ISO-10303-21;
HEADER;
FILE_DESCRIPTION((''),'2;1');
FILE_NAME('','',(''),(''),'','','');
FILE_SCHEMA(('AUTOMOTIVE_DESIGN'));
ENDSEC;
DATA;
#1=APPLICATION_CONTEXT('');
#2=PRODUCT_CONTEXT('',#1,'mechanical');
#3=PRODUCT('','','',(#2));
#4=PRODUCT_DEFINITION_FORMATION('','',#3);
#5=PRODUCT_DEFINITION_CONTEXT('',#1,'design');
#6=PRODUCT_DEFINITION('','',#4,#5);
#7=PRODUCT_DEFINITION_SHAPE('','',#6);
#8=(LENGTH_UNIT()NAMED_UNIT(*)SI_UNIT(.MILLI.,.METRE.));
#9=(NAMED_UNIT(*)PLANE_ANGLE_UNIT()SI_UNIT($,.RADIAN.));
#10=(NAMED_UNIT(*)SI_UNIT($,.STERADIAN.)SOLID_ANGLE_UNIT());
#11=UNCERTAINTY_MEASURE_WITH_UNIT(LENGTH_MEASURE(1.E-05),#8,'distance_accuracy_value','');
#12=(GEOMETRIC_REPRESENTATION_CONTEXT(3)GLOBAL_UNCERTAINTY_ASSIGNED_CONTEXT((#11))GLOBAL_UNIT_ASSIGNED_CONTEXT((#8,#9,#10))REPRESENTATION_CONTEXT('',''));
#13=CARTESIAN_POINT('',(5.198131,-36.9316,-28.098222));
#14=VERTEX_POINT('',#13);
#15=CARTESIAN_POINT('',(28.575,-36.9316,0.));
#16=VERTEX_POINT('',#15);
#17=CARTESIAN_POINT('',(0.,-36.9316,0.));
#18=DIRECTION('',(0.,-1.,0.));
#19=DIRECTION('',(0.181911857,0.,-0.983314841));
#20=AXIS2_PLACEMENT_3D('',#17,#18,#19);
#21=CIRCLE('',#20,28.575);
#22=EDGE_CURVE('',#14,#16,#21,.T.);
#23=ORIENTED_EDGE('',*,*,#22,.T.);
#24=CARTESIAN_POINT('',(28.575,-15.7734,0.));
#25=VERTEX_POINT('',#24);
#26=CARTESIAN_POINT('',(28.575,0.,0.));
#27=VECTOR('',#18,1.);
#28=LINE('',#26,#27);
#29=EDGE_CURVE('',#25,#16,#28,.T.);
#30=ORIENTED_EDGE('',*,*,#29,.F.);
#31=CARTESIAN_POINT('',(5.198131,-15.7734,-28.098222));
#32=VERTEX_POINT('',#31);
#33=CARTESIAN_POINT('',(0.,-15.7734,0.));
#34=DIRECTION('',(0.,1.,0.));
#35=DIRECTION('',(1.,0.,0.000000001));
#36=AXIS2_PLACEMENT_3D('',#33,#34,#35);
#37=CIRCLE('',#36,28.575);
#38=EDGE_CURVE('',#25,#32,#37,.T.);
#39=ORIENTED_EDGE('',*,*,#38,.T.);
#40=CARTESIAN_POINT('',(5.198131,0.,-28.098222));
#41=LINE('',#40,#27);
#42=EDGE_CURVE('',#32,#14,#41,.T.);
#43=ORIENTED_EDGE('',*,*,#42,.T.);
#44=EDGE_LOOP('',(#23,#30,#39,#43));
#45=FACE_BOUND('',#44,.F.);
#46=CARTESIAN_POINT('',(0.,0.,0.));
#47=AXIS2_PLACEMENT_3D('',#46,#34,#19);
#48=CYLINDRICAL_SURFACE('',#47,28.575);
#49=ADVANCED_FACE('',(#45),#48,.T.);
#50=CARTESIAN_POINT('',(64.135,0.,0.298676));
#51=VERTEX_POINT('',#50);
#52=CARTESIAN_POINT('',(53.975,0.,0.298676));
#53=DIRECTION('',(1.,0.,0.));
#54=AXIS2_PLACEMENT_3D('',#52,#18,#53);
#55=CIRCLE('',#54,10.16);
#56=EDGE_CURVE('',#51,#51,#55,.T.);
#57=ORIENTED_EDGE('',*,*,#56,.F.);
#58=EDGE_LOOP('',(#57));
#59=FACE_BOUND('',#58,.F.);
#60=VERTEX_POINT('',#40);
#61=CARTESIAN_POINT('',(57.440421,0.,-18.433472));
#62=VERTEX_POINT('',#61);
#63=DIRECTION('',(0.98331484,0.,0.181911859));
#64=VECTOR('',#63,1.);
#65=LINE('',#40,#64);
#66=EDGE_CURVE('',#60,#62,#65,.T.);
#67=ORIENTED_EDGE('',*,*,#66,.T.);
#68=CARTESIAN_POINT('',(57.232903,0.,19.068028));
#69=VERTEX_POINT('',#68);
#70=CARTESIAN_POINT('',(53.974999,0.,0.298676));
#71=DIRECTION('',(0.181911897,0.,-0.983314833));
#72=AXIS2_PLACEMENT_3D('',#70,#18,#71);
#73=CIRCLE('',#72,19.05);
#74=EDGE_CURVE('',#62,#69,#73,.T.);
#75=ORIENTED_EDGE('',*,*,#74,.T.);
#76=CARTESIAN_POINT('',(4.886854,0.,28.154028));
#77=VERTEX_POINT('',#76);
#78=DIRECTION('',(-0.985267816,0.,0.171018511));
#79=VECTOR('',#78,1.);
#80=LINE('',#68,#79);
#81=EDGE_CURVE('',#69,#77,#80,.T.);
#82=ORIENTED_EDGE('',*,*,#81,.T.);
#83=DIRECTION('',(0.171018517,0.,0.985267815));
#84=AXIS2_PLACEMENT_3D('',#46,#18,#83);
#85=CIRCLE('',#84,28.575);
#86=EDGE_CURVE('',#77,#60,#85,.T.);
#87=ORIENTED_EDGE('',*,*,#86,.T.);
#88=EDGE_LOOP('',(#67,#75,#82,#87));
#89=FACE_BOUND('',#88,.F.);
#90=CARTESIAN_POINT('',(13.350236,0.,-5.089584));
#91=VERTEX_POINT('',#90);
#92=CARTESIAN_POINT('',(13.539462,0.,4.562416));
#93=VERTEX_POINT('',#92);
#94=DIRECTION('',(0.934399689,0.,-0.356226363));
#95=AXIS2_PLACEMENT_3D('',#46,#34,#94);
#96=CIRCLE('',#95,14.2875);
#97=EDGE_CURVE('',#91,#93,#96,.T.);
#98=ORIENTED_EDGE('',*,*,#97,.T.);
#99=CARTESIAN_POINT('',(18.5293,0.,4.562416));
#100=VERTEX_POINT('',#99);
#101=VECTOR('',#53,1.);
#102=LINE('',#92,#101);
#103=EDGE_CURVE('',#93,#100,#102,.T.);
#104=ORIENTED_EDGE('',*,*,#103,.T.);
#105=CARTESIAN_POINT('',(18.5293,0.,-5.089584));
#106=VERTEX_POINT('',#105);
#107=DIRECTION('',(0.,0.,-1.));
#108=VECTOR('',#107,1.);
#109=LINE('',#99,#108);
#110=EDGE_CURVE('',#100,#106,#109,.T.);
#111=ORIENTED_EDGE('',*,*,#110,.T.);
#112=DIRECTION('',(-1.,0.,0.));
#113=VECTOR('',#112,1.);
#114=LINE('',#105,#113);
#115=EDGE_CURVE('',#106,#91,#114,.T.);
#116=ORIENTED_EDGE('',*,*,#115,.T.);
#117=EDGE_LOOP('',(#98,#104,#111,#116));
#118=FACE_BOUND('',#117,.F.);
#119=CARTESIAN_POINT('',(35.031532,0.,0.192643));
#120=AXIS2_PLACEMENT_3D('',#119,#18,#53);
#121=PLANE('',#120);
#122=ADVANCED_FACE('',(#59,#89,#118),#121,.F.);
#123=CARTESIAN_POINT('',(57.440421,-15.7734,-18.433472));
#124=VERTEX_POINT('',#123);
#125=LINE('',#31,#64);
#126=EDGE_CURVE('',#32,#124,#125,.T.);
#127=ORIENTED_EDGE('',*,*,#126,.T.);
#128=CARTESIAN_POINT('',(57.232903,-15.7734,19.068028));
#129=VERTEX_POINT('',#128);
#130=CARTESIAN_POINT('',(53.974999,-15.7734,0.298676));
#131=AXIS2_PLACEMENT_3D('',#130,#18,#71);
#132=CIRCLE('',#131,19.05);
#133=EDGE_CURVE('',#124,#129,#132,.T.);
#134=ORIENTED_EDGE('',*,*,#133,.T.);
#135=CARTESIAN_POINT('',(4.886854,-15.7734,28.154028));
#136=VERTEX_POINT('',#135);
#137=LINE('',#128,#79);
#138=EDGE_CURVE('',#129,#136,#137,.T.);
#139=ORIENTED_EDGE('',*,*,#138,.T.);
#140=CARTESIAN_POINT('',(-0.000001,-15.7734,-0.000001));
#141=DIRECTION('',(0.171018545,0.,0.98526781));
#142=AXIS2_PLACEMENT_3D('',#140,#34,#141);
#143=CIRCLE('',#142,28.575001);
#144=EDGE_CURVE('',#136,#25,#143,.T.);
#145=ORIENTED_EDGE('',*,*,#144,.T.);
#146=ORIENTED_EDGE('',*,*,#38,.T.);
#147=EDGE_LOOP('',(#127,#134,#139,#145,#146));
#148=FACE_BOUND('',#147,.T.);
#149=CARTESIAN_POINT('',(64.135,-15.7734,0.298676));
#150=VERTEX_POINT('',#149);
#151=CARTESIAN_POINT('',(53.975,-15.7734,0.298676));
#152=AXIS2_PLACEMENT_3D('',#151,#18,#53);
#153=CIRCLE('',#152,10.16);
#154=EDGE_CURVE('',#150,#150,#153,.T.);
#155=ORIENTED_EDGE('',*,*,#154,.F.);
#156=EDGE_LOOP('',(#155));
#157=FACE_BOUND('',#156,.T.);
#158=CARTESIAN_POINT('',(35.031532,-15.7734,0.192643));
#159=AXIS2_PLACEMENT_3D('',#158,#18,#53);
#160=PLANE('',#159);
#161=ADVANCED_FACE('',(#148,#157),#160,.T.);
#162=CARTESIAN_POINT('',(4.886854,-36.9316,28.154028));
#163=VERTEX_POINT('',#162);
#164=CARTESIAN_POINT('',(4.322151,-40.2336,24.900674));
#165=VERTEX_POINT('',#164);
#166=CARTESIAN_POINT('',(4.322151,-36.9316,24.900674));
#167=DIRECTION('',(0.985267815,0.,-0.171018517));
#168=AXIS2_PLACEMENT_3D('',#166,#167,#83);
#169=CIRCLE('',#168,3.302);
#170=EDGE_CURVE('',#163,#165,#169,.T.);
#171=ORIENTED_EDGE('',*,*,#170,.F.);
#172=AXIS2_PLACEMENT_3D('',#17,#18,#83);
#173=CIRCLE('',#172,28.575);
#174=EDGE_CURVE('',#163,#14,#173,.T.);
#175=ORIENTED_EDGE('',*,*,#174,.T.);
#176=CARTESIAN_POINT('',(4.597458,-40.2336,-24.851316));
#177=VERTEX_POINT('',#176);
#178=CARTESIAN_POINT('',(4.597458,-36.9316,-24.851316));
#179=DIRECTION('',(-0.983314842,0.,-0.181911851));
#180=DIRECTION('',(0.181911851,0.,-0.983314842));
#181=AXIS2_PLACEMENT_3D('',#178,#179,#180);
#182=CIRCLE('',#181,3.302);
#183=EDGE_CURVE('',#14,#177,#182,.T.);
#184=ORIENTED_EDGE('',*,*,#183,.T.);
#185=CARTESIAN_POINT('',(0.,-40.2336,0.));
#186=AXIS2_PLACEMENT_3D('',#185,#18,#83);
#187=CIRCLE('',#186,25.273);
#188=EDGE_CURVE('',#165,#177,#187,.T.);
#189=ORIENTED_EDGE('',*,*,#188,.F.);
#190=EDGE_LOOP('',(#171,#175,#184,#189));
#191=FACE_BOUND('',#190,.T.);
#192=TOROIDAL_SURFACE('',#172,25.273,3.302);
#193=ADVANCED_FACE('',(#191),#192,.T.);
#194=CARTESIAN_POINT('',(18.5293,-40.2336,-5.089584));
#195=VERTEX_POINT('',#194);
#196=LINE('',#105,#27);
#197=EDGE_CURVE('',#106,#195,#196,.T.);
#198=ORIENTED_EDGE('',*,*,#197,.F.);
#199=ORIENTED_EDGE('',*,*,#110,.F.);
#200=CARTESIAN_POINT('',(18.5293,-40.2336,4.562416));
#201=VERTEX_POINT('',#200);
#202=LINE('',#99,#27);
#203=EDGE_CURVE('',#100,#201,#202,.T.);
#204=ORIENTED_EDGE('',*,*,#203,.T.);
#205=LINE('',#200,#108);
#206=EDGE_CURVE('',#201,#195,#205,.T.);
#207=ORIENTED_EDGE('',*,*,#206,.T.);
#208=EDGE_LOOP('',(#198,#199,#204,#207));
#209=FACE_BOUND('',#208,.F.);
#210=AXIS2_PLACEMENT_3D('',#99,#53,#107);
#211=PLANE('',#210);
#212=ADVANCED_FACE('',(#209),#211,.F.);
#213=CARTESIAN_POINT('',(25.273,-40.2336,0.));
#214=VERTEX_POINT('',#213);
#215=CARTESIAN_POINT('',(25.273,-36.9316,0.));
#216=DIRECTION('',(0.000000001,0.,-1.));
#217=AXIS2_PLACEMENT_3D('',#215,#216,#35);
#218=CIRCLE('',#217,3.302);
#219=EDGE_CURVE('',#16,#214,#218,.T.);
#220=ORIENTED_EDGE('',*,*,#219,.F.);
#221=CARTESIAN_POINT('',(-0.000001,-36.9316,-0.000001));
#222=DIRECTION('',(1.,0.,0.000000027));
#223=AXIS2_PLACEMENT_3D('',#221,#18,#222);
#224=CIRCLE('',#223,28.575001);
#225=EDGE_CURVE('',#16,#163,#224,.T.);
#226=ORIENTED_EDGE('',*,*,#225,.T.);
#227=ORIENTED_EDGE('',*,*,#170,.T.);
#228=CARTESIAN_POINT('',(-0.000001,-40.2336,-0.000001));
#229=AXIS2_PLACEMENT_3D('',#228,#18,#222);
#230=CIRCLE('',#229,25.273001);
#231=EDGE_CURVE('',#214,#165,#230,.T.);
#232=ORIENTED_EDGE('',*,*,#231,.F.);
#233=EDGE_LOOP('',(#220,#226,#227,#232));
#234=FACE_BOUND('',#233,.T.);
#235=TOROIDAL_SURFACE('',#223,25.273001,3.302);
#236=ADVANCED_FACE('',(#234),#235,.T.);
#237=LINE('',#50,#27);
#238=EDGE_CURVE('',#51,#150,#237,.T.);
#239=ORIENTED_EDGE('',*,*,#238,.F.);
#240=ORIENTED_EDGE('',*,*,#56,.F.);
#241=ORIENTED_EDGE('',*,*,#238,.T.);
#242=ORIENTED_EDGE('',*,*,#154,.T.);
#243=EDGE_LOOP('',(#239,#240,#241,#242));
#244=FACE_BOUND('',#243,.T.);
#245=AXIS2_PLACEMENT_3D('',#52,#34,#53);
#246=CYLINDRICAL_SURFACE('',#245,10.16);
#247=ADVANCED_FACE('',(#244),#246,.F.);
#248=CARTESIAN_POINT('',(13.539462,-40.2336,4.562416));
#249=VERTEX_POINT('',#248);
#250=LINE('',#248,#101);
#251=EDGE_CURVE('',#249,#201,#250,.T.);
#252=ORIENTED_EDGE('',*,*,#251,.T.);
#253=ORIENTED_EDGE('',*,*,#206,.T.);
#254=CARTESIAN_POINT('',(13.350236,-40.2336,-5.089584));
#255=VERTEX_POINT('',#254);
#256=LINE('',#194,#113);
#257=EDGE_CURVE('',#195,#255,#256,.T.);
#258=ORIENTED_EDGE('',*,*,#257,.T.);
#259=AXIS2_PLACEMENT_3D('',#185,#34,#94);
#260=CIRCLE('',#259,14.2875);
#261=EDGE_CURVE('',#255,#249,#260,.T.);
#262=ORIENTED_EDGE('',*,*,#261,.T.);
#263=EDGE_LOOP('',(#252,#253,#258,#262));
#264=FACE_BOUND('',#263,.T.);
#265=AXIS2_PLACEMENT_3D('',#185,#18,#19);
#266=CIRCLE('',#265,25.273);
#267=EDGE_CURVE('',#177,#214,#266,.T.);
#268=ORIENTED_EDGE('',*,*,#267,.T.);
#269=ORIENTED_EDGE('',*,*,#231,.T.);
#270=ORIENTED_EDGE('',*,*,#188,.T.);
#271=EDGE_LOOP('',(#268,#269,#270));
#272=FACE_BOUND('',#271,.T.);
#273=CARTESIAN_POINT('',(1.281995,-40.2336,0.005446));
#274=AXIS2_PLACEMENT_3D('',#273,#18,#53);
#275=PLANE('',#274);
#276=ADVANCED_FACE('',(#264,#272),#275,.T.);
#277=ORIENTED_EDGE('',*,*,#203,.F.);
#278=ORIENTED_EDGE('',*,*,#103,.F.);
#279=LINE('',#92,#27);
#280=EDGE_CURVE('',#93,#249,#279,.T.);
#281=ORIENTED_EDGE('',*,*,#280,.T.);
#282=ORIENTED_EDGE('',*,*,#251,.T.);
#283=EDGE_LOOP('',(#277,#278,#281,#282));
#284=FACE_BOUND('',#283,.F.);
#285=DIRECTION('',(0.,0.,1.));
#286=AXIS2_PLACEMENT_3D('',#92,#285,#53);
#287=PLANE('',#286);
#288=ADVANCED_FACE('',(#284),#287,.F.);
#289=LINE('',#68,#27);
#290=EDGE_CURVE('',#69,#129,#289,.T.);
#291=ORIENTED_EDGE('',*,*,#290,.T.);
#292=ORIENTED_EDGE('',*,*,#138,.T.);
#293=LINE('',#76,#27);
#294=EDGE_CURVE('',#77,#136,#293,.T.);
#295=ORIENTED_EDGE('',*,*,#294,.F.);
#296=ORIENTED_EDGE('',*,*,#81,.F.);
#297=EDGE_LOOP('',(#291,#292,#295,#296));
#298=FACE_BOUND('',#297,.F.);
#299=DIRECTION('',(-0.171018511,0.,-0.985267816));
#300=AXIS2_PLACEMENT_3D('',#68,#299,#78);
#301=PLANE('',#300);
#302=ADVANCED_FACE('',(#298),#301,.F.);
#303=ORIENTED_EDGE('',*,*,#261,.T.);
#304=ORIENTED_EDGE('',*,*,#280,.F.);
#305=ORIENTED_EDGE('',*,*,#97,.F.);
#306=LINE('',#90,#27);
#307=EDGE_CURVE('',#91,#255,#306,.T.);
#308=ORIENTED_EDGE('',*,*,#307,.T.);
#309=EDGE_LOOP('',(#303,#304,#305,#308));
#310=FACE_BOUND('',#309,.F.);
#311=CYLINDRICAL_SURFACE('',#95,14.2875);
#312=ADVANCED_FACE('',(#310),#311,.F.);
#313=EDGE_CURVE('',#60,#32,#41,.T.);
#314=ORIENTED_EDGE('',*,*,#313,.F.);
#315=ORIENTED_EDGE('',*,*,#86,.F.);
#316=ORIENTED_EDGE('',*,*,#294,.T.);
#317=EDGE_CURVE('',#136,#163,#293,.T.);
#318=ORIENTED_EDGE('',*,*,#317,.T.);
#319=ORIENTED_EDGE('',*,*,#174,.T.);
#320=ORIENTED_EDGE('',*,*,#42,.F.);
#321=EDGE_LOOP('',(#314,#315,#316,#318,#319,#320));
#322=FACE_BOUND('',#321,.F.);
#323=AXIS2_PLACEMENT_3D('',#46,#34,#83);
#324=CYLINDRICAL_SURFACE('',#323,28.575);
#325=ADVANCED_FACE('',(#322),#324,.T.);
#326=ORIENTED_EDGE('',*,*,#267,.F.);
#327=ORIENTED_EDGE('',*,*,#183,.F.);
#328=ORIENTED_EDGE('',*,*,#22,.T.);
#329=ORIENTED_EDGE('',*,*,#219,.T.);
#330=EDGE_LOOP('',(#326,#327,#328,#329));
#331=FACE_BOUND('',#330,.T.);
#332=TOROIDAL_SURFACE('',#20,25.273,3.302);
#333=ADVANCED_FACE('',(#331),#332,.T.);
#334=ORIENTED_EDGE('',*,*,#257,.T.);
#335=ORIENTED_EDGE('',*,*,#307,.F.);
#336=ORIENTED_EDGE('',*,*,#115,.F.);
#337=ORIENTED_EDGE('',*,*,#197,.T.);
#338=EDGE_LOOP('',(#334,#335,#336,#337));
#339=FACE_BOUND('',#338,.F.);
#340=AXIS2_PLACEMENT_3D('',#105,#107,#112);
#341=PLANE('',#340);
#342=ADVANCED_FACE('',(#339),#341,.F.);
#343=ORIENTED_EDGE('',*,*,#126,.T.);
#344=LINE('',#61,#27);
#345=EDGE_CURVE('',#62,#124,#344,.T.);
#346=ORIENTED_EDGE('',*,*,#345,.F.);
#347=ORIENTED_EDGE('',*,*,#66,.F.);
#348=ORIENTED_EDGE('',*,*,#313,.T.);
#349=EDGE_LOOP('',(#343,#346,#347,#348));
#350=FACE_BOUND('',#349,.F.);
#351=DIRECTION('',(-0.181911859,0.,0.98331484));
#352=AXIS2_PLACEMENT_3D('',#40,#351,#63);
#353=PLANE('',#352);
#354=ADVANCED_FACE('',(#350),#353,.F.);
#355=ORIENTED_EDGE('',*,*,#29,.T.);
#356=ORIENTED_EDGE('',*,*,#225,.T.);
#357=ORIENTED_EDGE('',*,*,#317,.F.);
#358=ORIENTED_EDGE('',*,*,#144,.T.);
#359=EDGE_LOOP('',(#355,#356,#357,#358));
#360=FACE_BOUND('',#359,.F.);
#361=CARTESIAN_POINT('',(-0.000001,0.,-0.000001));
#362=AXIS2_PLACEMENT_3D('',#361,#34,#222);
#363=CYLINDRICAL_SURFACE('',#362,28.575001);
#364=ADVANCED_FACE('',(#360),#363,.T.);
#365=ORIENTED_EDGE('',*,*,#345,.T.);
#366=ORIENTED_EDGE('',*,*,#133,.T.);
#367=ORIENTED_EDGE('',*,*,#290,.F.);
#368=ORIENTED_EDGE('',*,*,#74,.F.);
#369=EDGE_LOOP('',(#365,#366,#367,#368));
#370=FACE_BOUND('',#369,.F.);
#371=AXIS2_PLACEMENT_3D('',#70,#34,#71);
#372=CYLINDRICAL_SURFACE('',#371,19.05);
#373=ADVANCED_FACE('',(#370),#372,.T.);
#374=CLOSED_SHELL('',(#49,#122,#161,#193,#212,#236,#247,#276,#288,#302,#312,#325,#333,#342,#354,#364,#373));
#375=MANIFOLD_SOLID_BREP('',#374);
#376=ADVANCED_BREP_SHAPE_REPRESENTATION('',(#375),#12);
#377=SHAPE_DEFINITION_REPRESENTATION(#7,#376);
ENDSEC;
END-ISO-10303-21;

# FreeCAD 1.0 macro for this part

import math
import FreeCAD as App
import Part
import Sketcher
Q = App.Units.Quantity


def edges_at(feature, points):
    """Names of the edges that pass closest to the given points."""
    edges = feature.Shape.Edges
    near = lambda p: min(range(len(edges)), key=lambda i: edges[i].distToShape(Part.Vertex(*p))[0])
    return sorted({f"Edge{near(p) + 1}" for p in points})

doc = App.newDocument("Part")
body = doc.addObject("PartDesign::Body", "Body")

# Sketch on XZ plane
sketch1 = body.newObject("Sketcher::SketchObject", "Sketch")
sketch1.AttachmentSupport = (doc.getObject("XZ_Plane"), [""])
sketch1.MapMode = "FlatFace"
sketch1.addGeometry([
    Part.ArcOfCircle(Part.Circle(App.Vector(0, 0, 0), App.Vector(0, 0, 1), 28.6), math.radians(-80), math.radians(0)),  # 0
    Part.ArcOfCircle(Part.Circle(App.Vector(0, 0, 0), App.Vector(0, 0, 1), 28.6), math.radians(0), math.radians(80)),  # 1
    Part.ArcOfCircle(Part.Circle(App.Vector(0, 0, 0), App.Vector(0, 0, 1), 28.6), math.radians(80), math.radians(280)),  # 2
    Part.LineSegment(App.Vector(18.5, -5.1, 0), App.Vector(13.4, -5.1, 0)),  # 3
    Part.ArcOfCircle(Part.Circle(App.Vector(0, 0, 0), App.Vector(0, 0, 1), 14.3), math.radians(19), math.radians(339)),  # 4
    Part.LineSegment(App.Vector(13.5, 4.6, 0), App.Vector(18.5, 4.6, 0)),  # 5
    Part.LineSegment(App.Vector(18.5, 4.6, 0), App.Vector(18.5, -5.1, 0)),  # 6
], False)
sketch1.addConstraint([
    Sketcher.Constraint("Tangent", 0, 2, 1, 1),
    Sketcher.Constraint("Tangent", 1, 2, 2, 1),
    Sketcher.Constraint("Tangent", 2, 2, 0, 1),
    Sketcher.Constraint("Coincident", 3, 2, 4, 2),
    Sketcher.Constraint("Coincident", 4, 1, 5, 1),
    Sketcher.Constraint("Coincident", 5, 2, 6, 1),
    Sketcher.Constraint("Coincident", 6, 2, 3, 1),
    Sketcher.Constraint("Horizontal", 3),
    Sketcher.Constraint("Horizontal", 5),
    Sketcher.Constraint("Vertical", 6),
    Sketcher.Constraint("Coincident", 0, 3, -1, 1),
    Sketcher.Constraint("Coincident", 4, 3, -1, 1),
    Sketcher.Constraint("PointOnObject", 0, 2, -1),
    Sketcher.Constraint("Radius", 0, Q("1.125 in")),
    Sketcher.Constraint("Radius", 4, Q("0.5625 in")),
    Sketcher.Constraint("DistanceY", 6, 2, 6, 1, Q("0.38 in")),
    Sketcher.Constraint("DistanceX", 3, 2, 3, 1, Q("0.2039002 in")),
    Sketcher.Constraint("DistanceX", -1, 1, 3, 2, Q("0.5255998 in")),
    Sketcher.Constraint("DistanceX", -1, 1, 2, 2, Q("5.198131 mm")),
    Sketcher.Constraint("DistanceY", 0, 3, 1, 2, Q("28.154028 mm")),
])
pad1 = body.newObject("PartDesign::Pad", "Pad")
pad1.Profile = sketch1
pad1.Length = Q("1.584 in")

# Sketch on XZ plane
sketch2 = body.newObject("Sketcher::SketchObject", "Sketch001")
sketch2.AttachmentSupport = (doc.getObject("XZ_Plane"), [""])
sketch2.MapMode = "FlatFace"
sketch2.addGeometry([
    Part.ArcOfCircle(Part.Circle(App.Vector(0, 0, 0), App.Vector(0, 0, 1), 29), math.radians(0), math.radians(80)),  # 0
    Part.ArcOfCircle(Part.Circle(App.Vector(0, 0, 0), App.Vector(0, 0, 1), 29), math.radians(-80), math.radians(0)),  # 1
    Part.LineSegment(App.Vector(5, -28, 0), App.Vector(57, -18, 0)),  # 2
    Part.ArcOfCircle(Part.Circle(App.Vector(54, 0, 0), App.Vector(0, 0, 1), 19), math.radians(-80), math.radians(80)),  # 3
    Part.LineSegment(App.Vector(57, 19, 0), App.Vector(5, 28, 0)),  # 4
    Part.Circle(App.Vector(54, 0, 0), App.Vector(0, 0, 1), 10),  # 5
], False)
sketch2.addConstraint([
    Sketcher.Constraint("Tangent", 0, 1, 1, 2),
    Sketcher.Constraint("Tangent", 1, 1, 2, 1),
    Sketcher.Constraint("Tangent", 2, 2, 3, 1),
    Sketcher.Constraint("Tangent", 3, 2, 4, 1),
    Sketcher.Constraint("Tangent", 4, 2, 0, 2),
    Sketcher.Constraint("Coincident", 0, 3, -1, 1),
    Sketcher.Constraint("Coincident", 5, 3, 3, 3),
    Sketcher.Constraint("Equal", 0, 1),
    Sketcher.Constraint("PointOnObject", 0, 1, -1),
    Sketcher.Constraint("Diameter", 5, Q("0.8 in")),
    Sketcher.Constraint("Radius", 3, Q("0.75 in")),
    Sketcher.Constraint("Radius", 0, Q("1.125 in")),
    Sketcher.Constraint("DistanceX", 0, 1, 3, 3, Q("1 in")),
    Sketcher.Constraint("DistanceY", 3, 2, 4, 2, Q("9.086 mm")),
])
pad2 = body.newObject("PartDesign::Pad", "Pad001")
pad2.Profile = sketch2
pad2.Length = Q("0.621 in")
doc.recompute()

fillet = body.newObject("PartDesign::Fillet", "Fillet")
fillet.Base = (pad2, edges_at(pad2, [(-28.575, -40.234, -0.158)]))
fillet.Radius = Q("0.13 in")

doc.recompute()
